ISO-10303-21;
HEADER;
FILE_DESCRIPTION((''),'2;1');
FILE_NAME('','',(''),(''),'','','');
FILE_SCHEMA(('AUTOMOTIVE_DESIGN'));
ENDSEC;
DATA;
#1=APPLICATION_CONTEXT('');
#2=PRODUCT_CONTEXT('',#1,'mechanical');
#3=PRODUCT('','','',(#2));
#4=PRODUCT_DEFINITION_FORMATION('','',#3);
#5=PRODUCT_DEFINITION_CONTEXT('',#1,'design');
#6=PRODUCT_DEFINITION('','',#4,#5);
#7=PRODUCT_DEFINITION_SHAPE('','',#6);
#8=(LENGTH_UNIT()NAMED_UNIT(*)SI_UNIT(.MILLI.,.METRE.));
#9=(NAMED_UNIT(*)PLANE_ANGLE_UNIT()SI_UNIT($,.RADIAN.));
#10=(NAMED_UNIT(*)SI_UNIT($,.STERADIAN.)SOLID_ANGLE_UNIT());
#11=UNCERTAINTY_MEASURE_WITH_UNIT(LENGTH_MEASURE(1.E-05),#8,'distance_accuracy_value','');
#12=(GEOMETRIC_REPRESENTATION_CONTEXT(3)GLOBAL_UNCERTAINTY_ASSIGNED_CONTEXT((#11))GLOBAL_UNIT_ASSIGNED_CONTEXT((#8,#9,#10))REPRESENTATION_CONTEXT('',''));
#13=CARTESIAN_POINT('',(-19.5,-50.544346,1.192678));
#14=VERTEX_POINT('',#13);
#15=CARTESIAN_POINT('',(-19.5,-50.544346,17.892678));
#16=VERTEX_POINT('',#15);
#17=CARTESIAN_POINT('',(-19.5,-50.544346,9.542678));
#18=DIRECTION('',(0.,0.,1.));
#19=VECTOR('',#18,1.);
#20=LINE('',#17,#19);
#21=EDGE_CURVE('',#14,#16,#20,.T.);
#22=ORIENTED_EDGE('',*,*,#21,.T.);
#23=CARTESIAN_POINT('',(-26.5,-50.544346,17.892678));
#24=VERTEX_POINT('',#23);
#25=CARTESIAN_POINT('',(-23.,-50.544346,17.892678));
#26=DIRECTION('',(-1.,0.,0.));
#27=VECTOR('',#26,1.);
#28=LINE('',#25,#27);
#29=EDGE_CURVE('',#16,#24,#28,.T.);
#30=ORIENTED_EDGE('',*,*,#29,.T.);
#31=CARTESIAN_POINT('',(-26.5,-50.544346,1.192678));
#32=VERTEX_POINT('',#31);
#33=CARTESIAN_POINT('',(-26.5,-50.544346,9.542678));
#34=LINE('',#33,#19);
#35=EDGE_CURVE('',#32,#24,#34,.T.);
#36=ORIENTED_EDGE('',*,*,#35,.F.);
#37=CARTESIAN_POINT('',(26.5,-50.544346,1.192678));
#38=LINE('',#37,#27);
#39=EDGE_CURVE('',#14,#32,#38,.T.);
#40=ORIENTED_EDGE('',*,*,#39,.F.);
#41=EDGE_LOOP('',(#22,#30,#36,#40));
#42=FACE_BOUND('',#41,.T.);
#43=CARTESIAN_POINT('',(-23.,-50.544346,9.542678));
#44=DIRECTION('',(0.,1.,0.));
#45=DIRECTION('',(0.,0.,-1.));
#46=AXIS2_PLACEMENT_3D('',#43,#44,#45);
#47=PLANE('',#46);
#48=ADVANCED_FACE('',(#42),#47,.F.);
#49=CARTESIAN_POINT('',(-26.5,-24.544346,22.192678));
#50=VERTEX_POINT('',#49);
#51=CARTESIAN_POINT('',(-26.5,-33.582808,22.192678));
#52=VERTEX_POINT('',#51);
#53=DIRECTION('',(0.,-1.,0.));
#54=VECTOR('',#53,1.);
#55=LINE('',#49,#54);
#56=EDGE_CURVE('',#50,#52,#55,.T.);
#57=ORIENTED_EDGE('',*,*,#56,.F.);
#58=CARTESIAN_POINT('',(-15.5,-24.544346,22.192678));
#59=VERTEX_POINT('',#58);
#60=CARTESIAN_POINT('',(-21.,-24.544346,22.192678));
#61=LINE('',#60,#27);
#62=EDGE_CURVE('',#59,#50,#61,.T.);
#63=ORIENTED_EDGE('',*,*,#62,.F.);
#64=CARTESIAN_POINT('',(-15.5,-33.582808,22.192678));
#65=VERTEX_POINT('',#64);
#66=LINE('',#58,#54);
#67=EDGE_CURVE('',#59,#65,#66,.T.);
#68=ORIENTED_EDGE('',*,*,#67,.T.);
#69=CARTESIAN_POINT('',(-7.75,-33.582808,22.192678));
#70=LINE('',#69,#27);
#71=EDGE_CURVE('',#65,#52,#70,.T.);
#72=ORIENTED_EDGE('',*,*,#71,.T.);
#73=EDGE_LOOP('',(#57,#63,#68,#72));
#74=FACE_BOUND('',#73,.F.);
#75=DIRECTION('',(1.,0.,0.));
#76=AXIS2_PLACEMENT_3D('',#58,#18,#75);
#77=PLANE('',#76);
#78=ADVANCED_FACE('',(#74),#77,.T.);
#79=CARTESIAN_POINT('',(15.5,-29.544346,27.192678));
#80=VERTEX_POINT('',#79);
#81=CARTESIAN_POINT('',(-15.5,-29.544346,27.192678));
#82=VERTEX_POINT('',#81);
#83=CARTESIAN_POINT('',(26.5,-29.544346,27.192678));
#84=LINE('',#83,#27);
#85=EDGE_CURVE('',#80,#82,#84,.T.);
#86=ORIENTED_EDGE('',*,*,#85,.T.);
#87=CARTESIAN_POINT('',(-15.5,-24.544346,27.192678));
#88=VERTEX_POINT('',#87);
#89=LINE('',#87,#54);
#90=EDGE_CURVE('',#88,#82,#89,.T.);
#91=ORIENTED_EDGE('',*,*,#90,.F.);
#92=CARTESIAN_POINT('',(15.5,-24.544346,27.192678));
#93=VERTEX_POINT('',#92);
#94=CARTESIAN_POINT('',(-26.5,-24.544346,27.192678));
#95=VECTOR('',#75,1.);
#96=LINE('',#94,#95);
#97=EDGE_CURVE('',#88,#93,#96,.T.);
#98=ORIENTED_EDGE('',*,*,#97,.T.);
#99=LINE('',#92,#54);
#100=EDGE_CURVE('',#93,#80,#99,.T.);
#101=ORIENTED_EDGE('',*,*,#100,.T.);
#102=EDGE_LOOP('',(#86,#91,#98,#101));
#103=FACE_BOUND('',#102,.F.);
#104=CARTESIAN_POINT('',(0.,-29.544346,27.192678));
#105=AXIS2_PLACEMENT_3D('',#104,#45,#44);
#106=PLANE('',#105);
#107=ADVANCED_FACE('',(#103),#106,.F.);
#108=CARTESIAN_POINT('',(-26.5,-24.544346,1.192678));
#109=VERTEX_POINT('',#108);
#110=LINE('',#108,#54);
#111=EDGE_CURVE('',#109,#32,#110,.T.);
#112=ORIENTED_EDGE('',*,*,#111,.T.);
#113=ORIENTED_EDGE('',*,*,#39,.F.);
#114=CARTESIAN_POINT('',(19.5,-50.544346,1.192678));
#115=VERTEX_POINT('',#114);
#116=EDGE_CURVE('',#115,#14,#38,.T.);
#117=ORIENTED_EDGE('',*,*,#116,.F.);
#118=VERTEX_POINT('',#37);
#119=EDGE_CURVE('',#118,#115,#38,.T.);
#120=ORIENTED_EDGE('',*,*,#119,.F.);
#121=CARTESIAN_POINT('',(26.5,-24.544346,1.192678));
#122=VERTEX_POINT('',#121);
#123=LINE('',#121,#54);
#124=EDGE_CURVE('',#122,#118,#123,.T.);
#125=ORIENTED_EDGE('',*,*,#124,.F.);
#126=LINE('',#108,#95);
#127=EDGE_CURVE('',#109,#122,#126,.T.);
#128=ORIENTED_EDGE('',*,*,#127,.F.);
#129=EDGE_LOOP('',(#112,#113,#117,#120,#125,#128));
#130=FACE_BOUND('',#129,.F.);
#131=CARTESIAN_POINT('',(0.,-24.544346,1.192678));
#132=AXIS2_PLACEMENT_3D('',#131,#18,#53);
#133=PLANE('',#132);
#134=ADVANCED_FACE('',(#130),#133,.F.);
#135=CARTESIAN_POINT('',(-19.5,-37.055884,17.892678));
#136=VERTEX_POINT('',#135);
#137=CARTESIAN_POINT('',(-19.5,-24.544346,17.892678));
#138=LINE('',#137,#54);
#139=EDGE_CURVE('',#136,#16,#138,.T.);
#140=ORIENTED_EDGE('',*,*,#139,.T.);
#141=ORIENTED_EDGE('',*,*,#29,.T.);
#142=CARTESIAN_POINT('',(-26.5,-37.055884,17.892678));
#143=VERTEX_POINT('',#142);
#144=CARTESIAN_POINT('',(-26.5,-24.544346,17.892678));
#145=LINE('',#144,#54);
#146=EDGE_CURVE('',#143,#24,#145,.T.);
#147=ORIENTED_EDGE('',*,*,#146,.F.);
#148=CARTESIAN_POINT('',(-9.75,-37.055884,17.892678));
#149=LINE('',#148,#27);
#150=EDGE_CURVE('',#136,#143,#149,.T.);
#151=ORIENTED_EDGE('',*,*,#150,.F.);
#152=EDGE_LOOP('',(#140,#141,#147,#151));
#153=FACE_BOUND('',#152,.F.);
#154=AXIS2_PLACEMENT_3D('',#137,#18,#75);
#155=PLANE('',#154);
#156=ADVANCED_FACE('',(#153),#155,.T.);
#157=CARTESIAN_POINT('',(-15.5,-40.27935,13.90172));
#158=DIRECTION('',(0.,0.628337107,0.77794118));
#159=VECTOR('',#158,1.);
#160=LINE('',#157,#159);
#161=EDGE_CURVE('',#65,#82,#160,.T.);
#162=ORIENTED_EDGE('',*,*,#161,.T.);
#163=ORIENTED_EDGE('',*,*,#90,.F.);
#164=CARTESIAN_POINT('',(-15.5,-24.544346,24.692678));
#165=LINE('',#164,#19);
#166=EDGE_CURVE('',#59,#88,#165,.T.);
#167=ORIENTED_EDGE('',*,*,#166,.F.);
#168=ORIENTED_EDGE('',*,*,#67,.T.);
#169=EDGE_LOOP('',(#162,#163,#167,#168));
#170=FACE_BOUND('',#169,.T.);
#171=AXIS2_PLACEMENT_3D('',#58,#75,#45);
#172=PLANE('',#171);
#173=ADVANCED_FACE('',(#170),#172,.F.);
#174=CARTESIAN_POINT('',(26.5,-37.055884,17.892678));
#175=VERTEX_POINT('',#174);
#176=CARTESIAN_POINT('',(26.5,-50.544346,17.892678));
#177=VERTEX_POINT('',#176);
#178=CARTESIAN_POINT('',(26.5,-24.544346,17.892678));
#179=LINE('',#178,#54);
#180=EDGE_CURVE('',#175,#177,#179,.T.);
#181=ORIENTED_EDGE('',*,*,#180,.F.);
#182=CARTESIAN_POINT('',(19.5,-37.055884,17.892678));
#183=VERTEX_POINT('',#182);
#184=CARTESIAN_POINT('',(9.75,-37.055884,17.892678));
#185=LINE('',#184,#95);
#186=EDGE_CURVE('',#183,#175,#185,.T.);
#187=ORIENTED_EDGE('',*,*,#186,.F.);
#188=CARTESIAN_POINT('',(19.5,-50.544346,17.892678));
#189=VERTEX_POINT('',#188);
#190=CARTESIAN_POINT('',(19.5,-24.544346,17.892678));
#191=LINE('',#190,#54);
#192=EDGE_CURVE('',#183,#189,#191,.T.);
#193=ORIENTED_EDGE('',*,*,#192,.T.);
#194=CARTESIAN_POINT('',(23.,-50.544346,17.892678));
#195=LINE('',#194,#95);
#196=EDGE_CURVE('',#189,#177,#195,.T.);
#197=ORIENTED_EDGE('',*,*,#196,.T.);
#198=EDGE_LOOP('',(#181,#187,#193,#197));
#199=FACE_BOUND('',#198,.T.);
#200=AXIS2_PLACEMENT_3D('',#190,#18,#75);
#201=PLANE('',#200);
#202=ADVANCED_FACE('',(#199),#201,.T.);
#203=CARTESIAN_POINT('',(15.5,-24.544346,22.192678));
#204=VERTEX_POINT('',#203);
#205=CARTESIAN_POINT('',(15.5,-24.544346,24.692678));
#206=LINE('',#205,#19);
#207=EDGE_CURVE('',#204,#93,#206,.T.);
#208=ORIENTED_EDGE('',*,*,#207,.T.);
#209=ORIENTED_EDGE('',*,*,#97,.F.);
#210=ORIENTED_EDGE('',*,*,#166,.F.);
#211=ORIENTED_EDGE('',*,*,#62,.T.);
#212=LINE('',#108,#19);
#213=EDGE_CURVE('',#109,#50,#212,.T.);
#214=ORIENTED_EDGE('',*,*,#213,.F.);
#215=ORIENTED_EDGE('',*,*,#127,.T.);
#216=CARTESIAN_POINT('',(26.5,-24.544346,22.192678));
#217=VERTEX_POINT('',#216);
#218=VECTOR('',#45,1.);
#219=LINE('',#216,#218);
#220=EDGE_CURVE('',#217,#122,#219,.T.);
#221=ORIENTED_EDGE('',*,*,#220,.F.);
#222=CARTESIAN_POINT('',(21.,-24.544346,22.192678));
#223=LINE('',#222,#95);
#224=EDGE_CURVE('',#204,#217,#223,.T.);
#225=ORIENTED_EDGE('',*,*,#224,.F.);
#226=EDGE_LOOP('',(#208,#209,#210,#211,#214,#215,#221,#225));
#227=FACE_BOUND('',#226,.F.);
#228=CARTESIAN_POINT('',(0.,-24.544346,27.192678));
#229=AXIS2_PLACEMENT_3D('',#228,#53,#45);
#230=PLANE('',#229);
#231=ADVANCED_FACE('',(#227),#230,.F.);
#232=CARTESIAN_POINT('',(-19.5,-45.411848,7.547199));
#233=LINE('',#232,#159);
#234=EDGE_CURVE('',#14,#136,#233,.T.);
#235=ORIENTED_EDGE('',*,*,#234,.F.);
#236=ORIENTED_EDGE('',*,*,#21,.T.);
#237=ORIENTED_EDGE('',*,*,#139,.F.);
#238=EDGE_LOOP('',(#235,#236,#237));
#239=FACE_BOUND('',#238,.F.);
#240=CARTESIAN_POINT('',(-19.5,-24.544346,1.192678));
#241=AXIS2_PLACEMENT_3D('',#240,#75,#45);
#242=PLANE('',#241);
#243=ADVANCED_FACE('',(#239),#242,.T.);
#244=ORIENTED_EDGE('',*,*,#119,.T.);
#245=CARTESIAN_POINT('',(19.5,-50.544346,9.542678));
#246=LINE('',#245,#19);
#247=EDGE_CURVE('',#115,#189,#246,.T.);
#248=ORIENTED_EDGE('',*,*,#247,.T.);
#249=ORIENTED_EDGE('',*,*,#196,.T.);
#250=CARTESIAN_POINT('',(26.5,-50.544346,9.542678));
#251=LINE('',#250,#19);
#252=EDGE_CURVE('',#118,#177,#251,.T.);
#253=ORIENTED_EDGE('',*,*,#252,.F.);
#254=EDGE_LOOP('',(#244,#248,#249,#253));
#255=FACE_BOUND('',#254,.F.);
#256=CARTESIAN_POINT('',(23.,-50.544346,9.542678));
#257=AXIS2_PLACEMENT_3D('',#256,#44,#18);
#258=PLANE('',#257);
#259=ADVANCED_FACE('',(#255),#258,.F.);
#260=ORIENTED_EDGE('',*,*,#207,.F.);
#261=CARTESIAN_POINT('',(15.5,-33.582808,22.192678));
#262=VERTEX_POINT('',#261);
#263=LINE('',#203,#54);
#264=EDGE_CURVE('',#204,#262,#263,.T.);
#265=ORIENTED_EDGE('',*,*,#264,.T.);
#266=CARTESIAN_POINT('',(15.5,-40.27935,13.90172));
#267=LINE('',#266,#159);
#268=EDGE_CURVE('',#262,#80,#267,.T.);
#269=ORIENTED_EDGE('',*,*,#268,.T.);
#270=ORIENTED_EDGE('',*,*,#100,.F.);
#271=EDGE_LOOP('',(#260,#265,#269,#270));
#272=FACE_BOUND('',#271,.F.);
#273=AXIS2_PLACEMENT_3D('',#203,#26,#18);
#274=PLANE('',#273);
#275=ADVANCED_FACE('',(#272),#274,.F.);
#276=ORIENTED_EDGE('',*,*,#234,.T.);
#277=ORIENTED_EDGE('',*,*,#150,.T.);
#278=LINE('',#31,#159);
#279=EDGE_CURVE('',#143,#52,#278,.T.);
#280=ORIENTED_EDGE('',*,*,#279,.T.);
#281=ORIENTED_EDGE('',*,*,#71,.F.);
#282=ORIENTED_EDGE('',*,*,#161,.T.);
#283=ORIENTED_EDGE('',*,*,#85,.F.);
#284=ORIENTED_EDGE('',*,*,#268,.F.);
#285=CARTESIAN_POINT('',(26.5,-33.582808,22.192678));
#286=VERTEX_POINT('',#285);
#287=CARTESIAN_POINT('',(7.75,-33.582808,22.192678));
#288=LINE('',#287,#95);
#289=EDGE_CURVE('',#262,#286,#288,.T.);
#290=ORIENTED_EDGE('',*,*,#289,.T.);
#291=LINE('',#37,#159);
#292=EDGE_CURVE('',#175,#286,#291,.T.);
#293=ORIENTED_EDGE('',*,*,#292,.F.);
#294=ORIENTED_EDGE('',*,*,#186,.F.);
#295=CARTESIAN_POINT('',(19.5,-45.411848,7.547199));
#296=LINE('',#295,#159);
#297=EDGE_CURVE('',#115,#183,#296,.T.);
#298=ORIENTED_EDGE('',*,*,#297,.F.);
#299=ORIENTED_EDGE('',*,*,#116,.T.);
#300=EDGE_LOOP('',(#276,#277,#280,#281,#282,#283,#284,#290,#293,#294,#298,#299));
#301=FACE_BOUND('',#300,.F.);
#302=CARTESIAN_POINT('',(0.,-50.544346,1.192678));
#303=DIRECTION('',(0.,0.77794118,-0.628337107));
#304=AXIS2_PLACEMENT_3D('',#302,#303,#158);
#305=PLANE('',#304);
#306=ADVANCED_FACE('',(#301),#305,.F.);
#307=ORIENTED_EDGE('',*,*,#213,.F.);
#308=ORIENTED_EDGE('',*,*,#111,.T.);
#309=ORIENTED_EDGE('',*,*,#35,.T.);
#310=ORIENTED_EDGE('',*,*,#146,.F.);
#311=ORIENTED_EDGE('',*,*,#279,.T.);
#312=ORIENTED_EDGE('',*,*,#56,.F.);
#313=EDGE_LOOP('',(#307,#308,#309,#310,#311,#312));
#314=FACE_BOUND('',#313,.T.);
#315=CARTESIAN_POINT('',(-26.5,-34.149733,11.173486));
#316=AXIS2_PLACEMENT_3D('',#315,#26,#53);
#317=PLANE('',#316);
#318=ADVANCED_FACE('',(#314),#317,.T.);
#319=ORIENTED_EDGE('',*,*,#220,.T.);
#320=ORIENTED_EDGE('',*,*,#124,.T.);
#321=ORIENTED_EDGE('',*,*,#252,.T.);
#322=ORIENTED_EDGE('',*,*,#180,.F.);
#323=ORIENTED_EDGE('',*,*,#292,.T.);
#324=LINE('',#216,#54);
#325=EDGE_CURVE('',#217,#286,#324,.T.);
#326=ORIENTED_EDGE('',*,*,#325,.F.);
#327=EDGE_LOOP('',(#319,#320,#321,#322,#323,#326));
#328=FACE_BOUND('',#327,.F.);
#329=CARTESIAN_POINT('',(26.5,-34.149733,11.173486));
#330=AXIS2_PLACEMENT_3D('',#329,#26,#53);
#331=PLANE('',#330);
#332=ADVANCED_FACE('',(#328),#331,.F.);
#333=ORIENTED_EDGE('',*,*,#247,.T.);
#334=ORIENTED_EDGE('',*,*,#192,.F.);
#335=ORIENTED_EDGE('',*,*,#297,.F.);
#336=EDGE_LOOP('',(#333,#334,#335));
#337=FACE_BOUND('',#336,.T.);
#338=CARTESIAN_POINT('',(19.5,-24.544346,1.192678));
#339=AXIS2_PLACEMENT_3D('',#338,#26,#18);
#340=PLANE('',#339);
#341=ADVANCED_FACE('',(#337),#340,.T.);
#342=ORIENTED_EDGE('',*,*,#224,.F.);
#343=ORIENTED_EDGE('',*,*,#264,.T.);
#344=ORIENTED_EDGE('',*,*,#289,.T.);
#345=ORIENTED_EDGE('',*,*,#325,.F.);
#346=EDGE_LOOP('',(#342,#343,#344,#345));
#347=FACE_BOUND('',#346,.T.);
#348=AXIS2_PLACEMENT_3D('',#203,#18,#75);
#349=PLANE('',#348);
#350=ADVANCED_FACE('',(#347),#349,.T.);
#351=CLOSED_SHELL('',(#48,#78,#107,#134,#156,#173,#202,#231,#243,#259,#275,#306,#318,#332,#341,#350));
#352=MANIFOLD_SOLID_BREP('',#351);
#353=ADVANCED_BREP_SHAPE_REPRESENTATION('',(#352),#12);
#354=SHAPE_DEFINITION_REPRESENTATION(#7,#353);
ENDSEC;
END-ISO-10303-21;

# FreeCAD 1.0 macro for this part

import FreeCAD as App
import Part
import Sketcher

V = App.Vector

doc = App.newDocument("Part")
params = doc.addObject("Spreadsheet::Sheet", "Params")
for row, (alias, value) in enumerate([
    ("sketch1_width", "26 mm"),
    ("sketch1_width2", "5 mm"),
    ("pad1_length", "26.5 mm"),
    ("pad1_length2", "26.5 mm"),
    ("sketch2_width", "11 mm"),
    ("sketch2_height", "5 mm"),
    ("pocket1_length", "10 mm"),
    ("sketch3_width", "7 mm"),
    ("sketch3_height", "16.7 mm"),
    ("pad2_length", "26 mm"),
], start=1):
    params.set(f"A{row}", alias)
    params.set(f"B{row}", "=" + value)
    params.setAlias(f"B{row}", alias)

body = doc.addObject("PartDesign::Body", "Body")

sketch1 = body.newObject("Sketcher::SketchObject", "Sketch")
sketch1.AttachmentSupport = (doc.getObject("YZ_Plane"), [""])
sketch1.MapMode = "FlatFace"
sketch1.addGeometry(Part.LineSegment(V(-51, 1, 0), V(-25, 1, 0)), False)
sketch1.addGeometry(Part.LineSegment(V(-25, 1, 0), V(-25, 27, 0)), False)
sketch1.addGeometry(Part.LineSegment(V(-25, 27, 0), V(-30, 27, 0)), False)
sketch1.addGeometry(Part.LineSegment(V(-30, 27, 0), V(-51, 1, 0)), False)
sketch1.addConstraint(Sketcher.Constraint("Coincident", 0, 2, 1, 1))
sketch1.addConstraint(Sketcher.Constraint("Coincident", 1, 2, 2, 1))
sketch1.addConstraint(Sketcher.Constraint("Coincident", 2, 2, 3, 1))
sketch1.addConstraint(Sketcher.Constraint("Coincident", 3, 2, 0, 1))
sketch1.addConstraint(Sketcher.Constraint("Horizontal", 0))
sketch1.addConstraint(Sketcher.Constraint("Vertical", 1))
sketch1.addConstraint(Sketcher.Constraint("Horizontal", 2))
sketch1.addConstraint(Sketcher.Constraint("Equal", 0, 1))
sketch1.addConstraint(Sketcher.Constraint("DistanceX", 0, 1, 0, 2, 26.0))
sketch1.addConstraint(Sketcher.Constraint("DistanceX", 2, 2, 2, 1, 5.0))
sketch1.addConstraint(Sketcher.Constraint("DistanceY", -1, 1, 1, 2, 27.192678))
sketch1.addConstraint(Sketcher.Constraint("DistanceX", 0, 2, -1, 1, 24.544346))
sketch1.setExpression("Constraints[8]", "Params.sketch1_width")
sketch1.setExpression("Constraints[9]", "Params.sketch1_width2")
pad1 = body.newObject("PartDesign::Pad", "Pad")
pad1.Profile = sketch1
pad1.Type = "TwoLengths"
pad1.setExpression("Length", "Params.pad1_length")
pad1.setExpression("Length2", "Params.pad1_length2")

sketch2 = body.newObject("Sketcher::SketchObject", "Sketch001")
sketch2.AttachmentSupport = (doc.getObject("XZ_Plane"), [""])
sketch2.MapMode = "FlatFace"
sketch2.AttachmentOffset = App.Placement(V(0, 0, 24.544346), App.Rotation())
sketch2.addGeometry(Part.LineSegment(V(26, 22, 0), V(16, 22, 0)), False)
sketch2.addGeometry(Part.LineSegment(V(16, 22, 0), V(16, 27, 0)), False)
sketch2.addGeometry(Part.LineSegment(V(16, 27, 0), V(26, 27, 0)), False)
sketch2.addGeometry(Part.LineSegment(V(26, 27, 0), V(26, 22, 0)), False)
sketch2.addConstraint(Sketcher.Constraint("Coincident", 0, 2, 1, 1))
sketch2.addConstraint(Sketcher.Constraint("Coincident", 1, 2, 2, 1))
sketch2.addConstraint(Sketcher.Constraint("Coincident", 2, 2, 3, 1))
sketch2.addConstraint(Sketcher.Constraint("Coincident", 3, 2, 0, 1))
sketch2.addConstraint(Sketcher.Constraint("Horizontal", 0))
sketch2.addConstraint(Sketcher.Constraint("Vertical", 1))
sketch2.addConstraint(Sketcher.Constraint("Horizontal", 2))
sketch2.addConstraint(Sketcher.Constraint("Vertical", 3))
sketch2.addConstraint(Sketcher.Constraint("DistanceX", 0, 2, 0, 1, 11.0))
sketch2.addConstraint(Sketcher.Constraint("DistanceY", 1, 1, 1, 2, 5.0))
sketch2.addConstraint(Sketcher.Constraint("DistanceX", -1, 1, 0, 2, 15.5))
sketch2.addConstraint(Sketcher.Constraint("DistanceY", -1, 1, 0, 2, 22.192678))
sketch2.setExpression("Constraints[8]", "Params.sketch2_width")
sketch2.setExpression("Constraints[9]", "Params.sketch2_height")
pocket1 = body.newObject("PartDesign::Pocket", "Pocket")
pocket1.Profile = sketch2
pocket1.setExpression("Length", "Params.pocket1_length")
pocket1.Reversed = True
doc.recompute()

mirrored = body.newObject("PartDesign::Mirrored", "Mirrored")
mirrored.Originals = [pocket1]
mirrored.MirrorPlane = (doc.getObject("YZ_Plane"), [""])
body.Tip = mirrored

sketch3 = body.newObject("Sketcher::SketchObject", "Sketch002")
sketch3.AttachmentSupport = (doc.getObject("XZ_Plane"), [""])
sketch3.MapMode = "FlatFace"
sketch3.AttachmentOffset = App.Placement(V(0, 0, 24.544346), App.Rotation())
sketch3.addGeometry(Part.LineSegment(V(26, 1, 0), V(20, 1, 0)), False)
sketch3.addGeometry(Part.LineSegment(V(20, 1, 0), V(20, 18, 0)), False)
sketch3.addGeometry(Part.LineSegment(V(20, 18, 0), V(26, 18, 0)), False)
sketch3.addGeometry(Part.LineSegment(V(26, 18, 0), V(26, 1, 0)), False)
sketch3.addConstraint(Sketcher.Constraint("Coincident", 0, 2, 1, 1))
sketch3.addConstraint(Sketcher.Constraint("Coincident", 1, 2, 2, 1))
sketch3.addConstraint(Sketcher.Constraint("Coincident", 2, 2, 3, 1))
sketch3.addConstraint(Sketcher.Constraint("Coincident", 3, 2, 0, 1))
sketch3.addConstraint(Sketcher.Constraint("Horizontal", 0))
sketch3.addConstraint(Sketcher.Constraint("Vertical", 1))
sketch3.addConstraint(Sketcher.Constraint("Horizontal", 2))
sketch3.addConstraint(Sketcher.Constraint("Vertical", 3))
sketch3.addConstraint(Sketcher.Constraint("DistanceX", 0, 2, 0, 1, 7.0))
sketch3.addConstraint(Sketcher.Constraint("DistanceY", 1, 1, 1, 2, 16.7))
sketch3.addConstraint(Sketcher.Constraint("DistanceX", -1, 1, 0, 2, 19.5))
sketch3.addConstraint(Sketcher.Constraint("DistanceY", -1, 1, 1, 2, 17.892678))
sketch3.setExpression("Constraints[8]", "Params.sketch3_width")
sketch3.setExpression("Constraints[9]", "Params.sketch3_height")
pad2 = body.newObject("PartDesign::Pad", "Pad001")
pad2.Profile = sketch3
pad2.setExpression("Length", "Params.pad2_length")
doc.recompute()

mirrored2 = body.newObject("PartDesign::Mirrored", "Mirrored001")
mirrored2.Originals = [pad2]
mirrored2.MirrorPlane = (doc.getObject("YZ_Plane"), [""])
body.Tip = mirrored2

doc.recompute()
